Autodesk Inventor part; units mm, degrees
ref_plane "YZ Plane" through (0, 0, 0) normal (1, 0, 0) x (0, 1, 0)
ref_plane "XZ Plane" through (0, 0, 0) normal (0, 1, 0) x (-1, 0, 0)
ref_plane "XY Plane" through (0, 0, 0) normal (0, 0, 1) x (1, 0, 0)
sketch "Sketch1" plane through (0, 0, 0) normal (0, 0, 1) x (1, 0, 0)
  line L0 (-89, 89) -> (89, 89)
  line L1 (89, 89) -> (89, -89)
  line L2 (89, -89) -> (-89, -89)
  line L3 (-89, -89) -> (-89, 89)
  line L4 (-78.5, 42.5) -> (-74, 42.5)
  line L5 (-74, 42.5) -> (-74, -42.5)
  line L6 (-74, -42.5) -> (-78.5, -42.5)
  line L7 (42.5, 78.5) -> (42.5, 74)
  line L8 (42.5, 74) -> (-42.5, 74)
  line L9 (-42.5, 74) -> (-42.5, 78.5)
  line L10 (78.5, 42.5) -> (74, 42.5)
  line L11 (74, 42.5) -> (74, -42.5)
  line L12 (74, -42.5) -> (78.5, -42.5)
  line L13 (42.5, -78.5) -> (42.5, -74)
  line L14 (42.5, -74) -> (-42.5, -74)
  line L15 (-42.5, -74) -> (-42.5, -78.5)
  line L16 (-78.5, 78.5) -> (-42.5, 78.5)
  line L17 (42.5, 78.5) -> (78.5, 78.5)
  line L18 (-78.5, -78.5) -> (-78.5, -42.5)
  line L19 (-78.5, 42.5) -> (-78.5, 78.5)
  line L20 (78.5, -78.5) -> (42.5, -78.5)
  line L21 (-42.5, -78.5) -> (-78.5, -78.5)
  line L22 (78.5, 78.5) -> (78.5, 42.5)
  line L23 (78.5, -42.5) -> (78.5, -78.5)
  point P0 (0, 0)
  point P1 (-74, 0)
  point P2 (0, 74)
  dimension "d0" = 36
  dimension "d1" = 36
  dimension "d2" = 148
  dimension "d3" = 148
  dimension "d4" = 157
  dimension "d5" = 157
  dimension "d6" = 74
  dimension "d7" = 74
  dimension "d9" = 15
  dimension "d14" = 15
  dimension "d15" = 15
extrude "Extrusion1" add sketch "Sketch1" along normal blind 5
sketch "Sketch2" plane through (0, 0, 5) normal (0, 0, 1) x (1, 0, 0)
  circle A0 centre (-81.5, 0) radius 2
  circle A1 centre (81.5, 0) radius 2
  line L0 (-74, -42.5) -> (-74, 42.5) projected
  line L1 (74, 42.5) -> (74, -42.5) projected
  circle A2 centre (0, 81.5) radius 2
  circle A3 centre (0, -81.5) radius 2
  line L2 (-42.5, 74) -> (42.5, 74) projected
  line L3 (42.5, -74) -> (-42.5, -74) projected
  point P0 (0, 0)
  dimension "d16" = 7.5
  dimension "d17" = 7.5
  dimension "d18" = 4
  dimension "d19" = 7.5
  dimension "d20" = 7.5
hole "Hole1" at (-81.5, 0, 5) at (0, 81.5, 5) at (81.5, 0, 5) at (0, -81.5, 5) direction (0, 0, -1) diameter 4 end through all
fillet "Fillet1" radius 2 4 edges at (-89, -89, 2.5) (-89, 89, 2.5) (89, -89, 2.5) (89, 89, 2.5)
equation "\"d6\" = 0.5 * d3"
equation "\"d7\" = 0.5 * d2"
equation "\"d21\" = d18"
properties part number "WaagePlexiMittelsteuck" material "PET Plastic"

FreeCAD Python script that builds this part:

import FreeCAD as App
import Part
import Sketcher
from FreeCAD import Vector
Q = App.Units.Quantity


def edges_at(feature, points):
    """Names of the edges that pass closest to the given points."""
    edges = feature.Shape.Edges
    near = lambda p: min(range(len(edges)), key=lambda i: edges[i].distToShape(Part.Vertex(*p))[0])
    return sorted({f"Edge{near(p) + 1}" for p in points})


def add_polygon(sketch, points):
    """Adds a closed chain of lines whose ends are joined by coincident constraints."""
    first, n = sketch.GeometryCount, len(points)
    for a, b in zip(points, points[1:] + points[:1]):
        sketch.addGeometry(Part.LineSegment(App.Vector(*a, 0), App.Vector(*b, 0)), False)
    for i in range(n):
        sketch.addConstraint(Sketcher.Constraint("Coincident", first + i, 2, first + (i + 1) % n, 1))

doc = App.newDocument("Part")
body = doc.addObject("PartDesign::Body", "Body")

sketch1 = body.newObject("Sketcher::SketchObject", "Sketch")
sketch1.AttachmentSupport = (doc.getObject("XY_Plane"), [""])
sketch1.MapMode = "FlatFace"
add_polygon(sketch1, [(89, 89), (-89, 89), (-89, -89), (89, -89)])
add_polygon(sketch1, [(-74, 42.5), (-78.5, 42.5), (-78.5, 78.5), (-42.5, 78.5), (-42.5, 74), (42.5, 74), (42.5, 78.5), (78.5, 78.5), (78.5, 42.5), (74, 42.5), (74, -42.5), (78.5, -42.5), (78.5, -78.5), (42.5, -78.5), (42.5, -74), (-42.5, -74), (-42.5, -78.5), (-78.5, -78.5), (-78.5, -42.5), (-74, -42.5)])
sketch1.addConstraint(Sketcher.Constraint("Horizontal", 0))
sketch1.addConstraint(Sketcher.Constraint("Vertical", 1))
sketch1.addConstraint(Sketcher.Constraint("Horizontal", 2))
sketch1.addConstraint(Sketcher.Constraint("Vertical", 3))
sketch1.addConstraint(Sketcher.Constraint("Horizontal", 4))
sketch1.addConstraint(Sketcher.Constraint("Vertical", 5))
sketch1.addConstraint(Sketcher.Constraint("Horizontal", 6))
sketch1.addConstraint(Sketcher.Constraint("Vertical", 7))
sketch1.addConstraint(Sketcher.Constraint("Horizontal", 8))
sketch1.addConstraint(Sketcher.Constraint("Vertical", 9))
sketch1.addConstraint(Sketcher.Constraint("Horizontal", 10))
sketch1.addConstraint(Sketcher.Constraint("Vertical", 11))
sketch1.addConstraint(Sketcher.Constraint("Horizontal", 12))
sketch1.addConstraint(Sketcher.Constraint("Vertical", 13))
sketch1.addConstraint(Sketcher.Constraint("Horizontal", 14))
sketch1.addConstraint(Sketcher.Constraint("Vertical", 15))
sketch1.addConstraint(Sketcher.Constraint("Horizontal", 16))
sketch1.addConstraint(Sketcher.Constraint("Vertical", 17))
sketch1.addConstraint(Sketcher.Constraint("Horizontal", 18))
sketch1.addConstraint(Sketcher.Constraint("Vertical", 19))
sketch1.addConstraint(Sketcher.Constraint("Horizontal", 20))
sketch1.addConstraint(Sketcher.Constraint("Vertical", 21))
sketch1.addConstraint(Sketcher.Constraint("Horizontal", 22))
sketch1.addConstraint(Sketcher.Constraint("Vertical", 23))
sketch1.addConstraint(Sketcher.Constraint("Symmetric", 0, 2, 2, 2, -1, 1))
sketch1.addConstraint(Sketcher.Constraint("Symmetric", 4, 2, 14, 2, -1, 1))
sketch1.addConstraint(Sketcher.Constraint("Symmetric", 6, 2, 16, 2, -1, 1))
sketch1.addConstraint(Sketcher.Constraint("Symmetric", 8, 2, 18, 2, -1, 1))
sketch1.addConstraint(Sketcher.Constraint("Symmetric", 10, 2, 20, 2, -1, 1))
sketch1.addConstraint(Sketcher.Constraint("Symmetric", 12, 2, 22, 2, -1, 1))
sketch1.addConstraint(Sketcher.Constraint("Symmetric", 6, 2, 9, 2, -2))
sketch1.addConstraint(Sketcher.Constraint("Symmetric", 4, 2, 11, 2, -2))
sketch1.addConstraint(Sketcher.Constraint("Equal", 2, 1))
sketch1.addConstraint(Sketcher.Constraint("Equal", 20, 5))
sketch1.addConstraint(Sketcher.Constraint("Equal", 22, 7))
sketch1.addConstraint(Sketcher.Constraint("Equal", 18, 13))
sketch1.addConstraint(Sketcher.Constraint("DistanceX", 6, 1, 6, 2, Q("36 mm")))
sketch1.addConstraint(Sketcher.Constraint("DistanceY", -1, 1, 7, 2, Q("74 mm")))
sketch1.addConstraint(Sketcher.Constraint("DistanceY", 7, 2, 0, 2, Q("15 mm")))
sketch1.addConstraint(Sketcher.Constraint("DistanceX", 8, 1, 8, 2, Q("85 mm")))
pad1 = body.newObject("PartDesign::Pad", "Pad")
pad1.Profile = sketch1
pad1.Length = 5

sketch2 = body.newObject("Sketcher::SketchObject", "Sketch001")
sketch2.AttachmentSupport = (doc.getObject("XY_Plane"), [""])
sketch2.MapMode = "FlatFace"
sketch2.AttachmentOffset = App.Placement(Vector(0, 0, 5), App.Rotation())
sketch2.addGeometry(Part.Circle(Vector(-81.5, 0, 0), Vector(0, 0, 1), 2), False)
sketch2.addGeometry(Part.Circle(Vector(0, 81.5, 0), Vector(0, 0, 1), 2), False)
sketch2.addGeometry(Part.Circle(Vector(81.5, 0, 0), Vector(0, 0, 1), 2), False)
sketch2.addGeometry(Part.Circle(Vector(0, -81.5, 0), Vector(0, 0, 1), 2), False)
sketch2.addConstraint(Sketcher.Constraint("Equal", 0, 1))
sketch2.addConstraint(Sketcher.Constraint("Equal", 1, 2))
sketch2.addConstraint(Sketcher.Constraint("Equal", 2, 3))
sketch2.addConstraint(Sketcher.Constraint("Symmetric", 0, 3, 2, 3, -1, 1))
sketch2.addConstraint(Sketcher.Constraint("Symmetric", 1, 3, 3, 3, -1, 1))
sketch2.addConstraint(Sketcher.Constraint("PointOnObject", 0, 3, -1))
sketch2.addConstraint(Sketcher.Constraint("PointOnObject", 1, 3, -2))
sketch2.addConstraint(Sketcher.Constraint("Diameter", 0, Q("4 mm")))
sketch2.addConstraint(Sketcher.Constraint("DistanceX", 0, 3, 2, 3, Q("163 mm")))
sketch2.addConstraint(Sketcher.Constraint("DistanceY", 3, 3, 1, 3, Q("163 mm")))
doc.recompute()
hole = body.newObject("PartDesign::Hole", "Hole")
hole.Profile = sketch2
hole.ThreadType = "None"
hole.Diameter = 4
hole.DepthType = "ThroughAll"
doc.recompute()

fillet = body.newObject("PartDesign::Fillet", "Fillet")
fillet.Base = (hole, edges_at(hole, [
    (-89, -89, 2.5),
    (-89, 89, 2.5),
    (89, -89, 2.5),
    (89, 89, 2.5),
]))
fillet.Radius = 2

doc.recompute()
